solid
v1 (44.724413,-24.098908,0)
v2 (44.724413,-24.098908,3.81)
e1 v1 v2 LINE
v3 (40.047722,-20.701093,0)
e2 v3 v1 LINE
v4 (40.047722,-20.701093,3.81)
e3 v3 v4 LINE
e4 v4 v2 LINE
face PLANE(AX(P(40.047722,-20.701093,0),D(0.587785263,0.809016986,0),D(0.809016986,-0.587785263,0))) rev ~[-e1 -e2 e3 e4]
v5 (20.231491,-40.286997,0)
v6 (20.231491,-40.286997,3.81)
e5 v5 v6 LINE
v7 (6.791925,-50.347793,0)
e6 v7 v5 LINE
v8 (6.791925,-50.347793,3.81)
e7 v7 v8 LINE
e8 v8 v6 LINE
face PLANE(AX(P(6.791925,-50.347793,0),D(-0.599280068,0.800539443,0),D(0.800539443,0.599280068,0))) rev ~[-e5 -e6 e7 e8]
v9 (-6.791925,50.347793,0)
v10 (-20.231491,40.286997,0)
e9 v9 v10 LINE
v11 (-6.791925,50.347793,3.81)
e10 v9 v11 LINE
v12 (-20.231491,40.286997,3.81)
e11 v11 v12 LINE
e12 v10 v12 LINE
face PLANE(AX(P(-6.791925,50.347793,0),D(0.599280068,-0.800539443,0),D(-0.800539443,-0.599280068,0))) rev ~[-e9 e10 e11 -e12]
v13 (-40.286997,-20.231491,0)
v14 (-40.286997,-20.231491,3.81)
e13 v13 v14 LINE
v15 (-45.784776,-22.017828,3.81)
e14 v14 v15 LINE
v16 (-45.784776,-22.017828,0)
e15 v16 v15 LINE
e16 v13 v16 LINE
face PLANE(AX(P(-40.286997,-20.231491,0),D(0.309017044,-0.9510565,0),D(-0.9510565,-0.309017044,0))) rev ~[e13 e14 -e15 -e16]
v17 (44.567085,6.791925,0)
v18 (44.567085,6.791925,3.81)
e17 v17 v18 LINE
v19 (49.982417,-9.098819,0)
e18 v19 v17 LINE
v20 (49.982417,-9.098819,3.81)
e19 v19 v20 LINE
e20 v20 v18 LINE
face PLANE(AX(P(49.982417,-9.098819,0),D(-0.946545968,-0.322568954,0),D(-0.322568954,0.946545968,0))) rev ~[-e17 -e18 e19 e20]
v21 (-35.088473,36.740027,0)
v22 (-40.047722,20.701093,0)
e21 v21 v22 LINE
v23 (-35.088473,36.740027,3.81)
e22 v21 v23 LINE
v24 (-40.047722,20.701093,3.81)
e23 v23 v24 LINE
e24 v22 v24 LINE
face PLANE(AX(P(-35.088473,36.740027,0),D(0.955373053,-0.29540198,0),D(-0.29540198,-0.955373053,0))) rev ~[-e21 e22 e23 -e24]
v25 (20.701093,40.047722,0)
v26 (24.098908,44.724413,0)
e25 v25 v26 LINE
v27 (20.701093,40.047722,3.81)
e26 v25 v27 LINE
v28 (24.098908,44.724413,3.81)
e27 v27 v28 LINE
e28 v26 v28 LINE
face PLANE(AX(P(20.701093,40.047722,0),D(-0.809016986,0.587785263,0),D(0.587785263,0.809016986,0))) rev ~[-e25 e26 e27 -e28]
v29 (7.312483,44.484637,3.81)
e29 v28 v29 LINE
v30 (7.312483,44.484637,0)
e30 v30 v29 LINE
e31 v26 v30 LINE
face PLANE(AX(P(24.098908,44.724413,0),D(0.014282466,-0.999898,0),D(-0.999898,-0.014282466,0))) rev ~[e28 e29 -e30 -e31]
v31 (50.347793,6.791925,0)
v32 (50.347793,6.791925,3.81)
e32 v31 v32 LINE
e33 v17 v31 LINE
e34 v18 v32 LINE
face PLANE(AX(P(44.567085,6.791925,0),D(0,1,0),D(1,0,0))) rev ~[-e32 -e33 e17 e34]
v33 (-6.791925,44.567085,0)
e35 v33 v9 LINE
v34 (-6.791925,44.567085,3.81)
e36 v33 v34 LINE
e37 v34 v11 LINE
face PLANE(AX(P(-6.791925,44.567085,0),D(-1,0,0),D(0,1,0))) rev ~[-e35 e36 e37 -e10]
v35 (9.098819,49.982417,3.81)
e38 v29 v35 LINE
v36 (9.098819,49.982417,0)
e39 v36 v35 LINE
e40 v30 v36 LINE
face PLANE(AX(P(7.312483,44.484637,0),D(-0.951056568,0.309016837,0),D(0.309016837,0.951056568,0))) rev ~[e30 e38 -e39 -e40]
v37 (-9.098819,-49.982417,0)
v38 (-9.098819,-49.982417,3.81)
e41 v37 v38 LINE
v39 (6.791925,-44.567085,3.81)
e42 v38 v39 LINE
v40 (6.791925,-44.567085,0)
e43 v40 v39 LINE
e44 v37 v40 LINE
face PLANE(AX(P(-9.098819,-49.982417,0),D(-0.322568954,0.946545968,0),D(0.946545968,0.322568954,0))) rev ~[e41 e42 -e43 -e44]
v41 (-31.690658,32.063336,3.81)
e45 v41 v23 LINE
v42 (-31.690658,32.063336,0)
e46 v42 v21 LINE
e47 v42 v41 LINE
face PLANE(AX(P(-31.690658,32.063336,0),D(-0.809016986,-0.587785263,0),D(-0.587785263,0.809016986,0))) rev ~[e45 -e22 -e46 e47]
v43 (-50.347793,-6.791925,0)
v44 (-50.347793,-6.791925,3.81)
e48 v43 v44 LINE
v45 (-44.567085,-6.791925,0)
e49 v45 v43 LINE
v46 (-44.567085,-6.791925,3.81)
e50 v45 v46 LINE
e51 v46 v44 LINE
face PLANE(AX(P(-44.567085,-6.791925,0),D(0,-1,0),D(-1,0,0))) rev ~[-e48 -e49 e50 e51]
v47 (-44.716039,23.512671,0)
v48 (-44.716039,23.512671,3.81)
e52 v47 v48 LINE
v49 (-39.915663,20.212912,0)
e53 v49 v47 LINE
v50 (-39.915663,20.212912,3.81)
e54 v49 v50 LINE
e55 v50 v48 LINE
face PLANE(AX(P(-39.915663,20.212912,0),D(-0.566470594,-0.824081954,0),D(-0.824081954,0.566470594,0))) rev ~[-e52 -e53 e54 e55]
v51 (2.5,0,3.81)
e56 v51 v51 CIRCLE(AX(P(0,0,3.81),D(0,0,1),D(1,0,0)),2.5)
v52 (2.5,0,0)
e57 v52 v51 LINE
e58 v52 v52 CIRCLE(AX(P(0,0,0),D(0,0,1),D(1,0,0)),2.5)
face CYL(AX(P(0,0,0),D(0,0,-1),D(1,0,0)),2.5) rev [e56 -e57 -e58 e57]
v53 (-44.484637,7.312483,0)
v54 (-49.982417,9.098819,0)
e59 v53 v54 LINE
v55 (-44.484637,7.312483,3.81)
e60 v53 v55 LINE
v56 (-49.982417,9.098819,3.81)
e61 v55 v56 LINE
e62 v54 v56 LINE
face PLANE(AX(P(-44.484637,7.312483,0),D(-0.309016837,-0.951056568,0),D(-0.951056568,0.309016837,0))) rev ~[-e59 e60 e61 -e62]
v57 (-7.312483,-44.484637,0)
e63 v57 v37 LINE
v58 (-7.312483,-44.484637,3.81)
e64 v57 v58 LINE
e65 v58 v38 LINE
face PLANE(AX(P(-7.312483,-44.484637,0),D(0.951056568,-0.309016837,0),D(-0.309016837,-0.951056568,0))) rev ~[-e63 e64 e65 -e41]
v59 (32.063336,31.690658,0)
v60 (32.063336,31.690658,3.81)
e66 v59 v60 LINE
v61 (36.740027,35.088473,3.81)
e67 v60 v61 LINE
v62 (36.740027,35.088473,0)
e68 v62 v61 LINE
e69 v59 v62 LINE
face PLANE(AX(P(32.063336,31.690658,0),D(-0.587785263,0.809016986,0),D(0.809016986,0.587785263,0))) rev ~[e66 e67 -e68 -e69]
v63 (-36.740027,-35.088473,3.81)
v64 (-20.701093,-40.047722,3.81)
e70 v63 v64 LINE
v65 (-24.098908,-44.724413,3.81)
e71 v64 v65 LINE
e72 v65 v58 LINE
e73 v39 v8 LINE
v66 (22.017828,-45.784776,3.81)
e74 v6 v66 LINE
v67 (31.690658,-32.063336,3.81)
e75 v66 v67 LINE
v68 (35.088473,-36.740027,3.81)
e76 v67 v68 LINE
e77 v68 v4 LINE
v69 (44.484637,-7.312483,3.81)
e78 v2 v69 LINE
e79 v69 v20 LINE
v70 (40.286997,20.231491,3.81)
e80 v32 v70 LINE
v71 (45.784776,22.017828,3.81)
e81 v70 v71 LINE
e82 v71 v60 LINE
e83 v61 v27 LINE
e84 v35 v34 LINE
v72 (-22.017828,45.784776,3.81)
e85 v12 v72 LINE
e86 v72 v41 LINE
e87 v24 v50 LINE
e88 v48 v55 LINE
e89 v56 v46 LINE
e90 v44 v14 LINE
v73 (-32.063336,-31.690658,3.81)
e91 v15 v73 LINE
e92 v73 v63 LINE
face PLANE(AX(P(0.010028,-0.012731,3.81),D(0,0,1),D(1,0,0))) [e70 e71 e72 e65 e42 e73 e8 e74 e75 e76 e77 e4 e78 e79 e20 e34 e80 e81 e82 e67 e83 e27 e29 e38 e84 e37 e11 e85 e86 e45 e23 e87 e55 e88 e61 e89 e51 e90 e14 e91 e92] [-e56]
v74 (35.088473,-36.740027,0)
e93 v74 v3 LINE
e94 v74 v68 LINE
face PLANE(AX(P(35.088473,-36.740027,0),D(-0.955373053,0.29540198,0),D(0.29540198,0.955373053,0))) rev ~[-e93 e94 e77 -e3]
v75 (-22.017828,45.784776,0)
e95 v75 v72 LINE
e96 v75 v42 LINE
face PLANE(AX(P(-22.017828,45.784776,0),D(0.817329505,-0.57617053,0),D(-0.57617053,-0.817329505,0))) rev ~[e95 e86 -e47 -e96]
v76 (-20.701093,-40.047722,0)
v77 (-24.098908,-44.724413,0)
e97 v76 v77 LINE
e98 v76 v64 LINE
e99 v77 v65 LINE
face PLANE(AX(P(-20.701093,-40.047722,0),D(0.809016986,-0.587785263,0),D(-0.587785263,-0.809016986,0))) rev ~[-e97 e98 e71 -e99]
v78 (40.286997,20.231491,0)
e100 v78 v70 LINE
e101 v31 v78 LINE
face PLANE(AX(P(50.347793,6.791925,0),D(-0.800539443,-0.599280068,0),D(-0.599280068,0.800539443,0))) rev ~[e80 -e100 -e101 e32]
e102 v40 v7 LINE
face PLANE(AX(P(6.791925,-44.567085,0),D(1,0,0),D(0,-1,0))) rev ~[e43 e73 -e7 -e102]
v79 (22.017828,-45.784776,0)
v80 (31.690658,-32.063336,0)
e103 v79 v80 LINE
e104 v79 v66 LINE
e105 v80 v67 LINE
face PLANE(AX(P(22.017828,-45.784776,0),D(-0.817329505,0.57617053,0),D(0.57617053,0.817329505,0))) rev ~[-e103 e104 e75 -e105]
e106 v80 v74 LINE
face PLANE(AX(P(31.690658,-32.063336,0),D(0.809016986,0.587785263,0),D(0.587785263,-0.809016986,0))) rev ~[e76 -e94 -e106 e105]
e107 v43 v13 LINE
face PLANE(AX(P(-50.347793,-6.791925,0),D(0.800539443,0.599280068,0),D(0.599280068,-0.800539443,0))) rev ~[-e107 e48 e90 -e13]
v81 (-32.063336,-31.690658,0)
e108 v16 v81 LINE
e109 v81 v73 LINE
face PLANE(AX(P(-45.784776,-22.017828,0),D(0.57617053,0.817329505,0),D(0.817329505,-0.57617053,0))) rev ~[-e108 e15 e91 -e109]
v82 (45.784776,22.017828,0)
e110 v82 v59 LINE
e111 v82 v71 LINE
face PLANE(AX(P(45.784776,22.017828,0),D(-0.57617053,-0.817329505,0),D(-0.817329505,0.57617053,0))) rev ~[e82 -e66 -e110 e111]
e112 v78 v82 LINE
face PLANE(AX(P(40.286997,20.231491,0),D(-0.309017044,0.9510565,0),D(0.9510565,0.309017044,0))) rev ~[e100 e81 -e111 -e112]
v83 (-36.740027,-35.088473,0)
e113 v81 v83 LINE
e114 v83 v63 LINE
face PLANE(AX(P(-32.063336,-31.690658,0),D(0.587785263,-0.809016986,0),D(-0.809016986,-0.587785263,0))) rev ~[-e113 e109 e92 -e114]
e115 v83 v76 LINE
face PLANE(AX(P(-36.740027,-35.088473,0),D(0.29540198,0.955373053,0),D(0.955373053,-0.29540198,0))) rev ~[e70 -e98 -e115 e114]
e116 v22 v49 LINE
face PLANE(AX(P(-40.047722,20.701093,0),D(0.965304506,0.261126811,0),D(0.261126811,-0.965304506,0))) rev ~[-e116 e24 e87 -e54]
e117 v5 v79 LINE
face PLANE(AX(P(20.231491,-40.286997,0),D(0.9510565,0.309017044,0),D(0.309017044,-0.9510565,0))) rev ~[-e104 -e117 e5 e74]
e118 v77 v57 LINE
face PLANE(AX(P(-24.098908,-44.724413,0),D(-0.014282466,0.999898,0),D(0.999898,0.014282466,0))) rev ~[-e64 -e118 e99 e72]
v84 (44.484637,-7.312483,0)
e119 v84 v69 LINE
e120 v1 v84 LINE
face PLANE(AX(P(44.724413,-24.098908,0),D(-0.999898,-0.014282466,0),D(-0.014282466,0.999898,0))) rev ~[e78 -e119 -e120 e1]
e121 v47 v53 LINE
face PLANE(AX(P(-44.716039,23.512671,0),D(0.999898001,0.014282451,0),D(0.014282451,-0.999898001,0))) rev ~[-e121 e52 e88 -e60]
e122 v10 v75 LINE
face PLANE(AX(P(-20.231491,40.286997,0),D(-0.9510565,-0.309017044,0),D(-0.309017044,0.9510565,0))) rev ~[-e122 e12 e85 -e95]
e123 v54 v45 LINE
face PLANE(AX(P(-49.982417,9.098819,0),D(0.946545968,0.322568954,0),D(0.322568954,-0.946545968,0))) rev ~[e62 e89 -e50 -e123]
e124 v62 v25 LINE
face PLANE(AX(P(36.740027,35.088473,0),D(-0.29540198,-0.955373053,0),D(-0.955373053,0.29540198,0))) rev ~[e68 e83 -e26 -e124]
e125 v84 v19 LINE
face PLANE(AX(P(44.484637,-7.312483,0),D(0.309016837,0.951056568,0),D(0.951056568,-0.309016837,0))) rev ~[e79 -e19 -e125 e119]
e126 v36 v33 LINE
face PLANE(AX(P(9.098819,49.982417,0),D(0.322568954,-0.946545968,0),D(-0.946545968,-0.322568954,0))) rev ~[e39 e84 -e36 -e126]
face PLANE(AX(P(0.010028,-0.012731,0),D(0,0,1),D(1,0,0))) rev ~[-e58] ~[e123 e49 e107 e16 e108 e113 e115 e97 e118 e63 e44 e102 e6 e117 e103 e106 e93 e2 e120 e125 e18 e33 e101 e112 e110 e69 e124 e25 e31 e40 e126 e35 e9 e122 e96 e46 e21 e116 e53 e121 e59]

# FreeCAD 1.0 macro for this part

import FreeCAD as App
import Part
import Sketcher
from FreeCAD import Vector
Q = App.Units.Quantity


def add_polygon(sketch, points):
    """Adds a closed chain of lines whose ends are joined by coincident constraints."""
    first, n = sketch.GeometryCount, len(points)
    for a, b in zip(points, points[1:] + points[:1]):
        sketch.addGeometry(Part.LineSegment(App.Vector(*a, 0), App.Vector(*b, 0)), False)
    for i in range(n):
        sketch.addConstraint(Sketcher.Constraint("Coincident", first + i, 2, first + (i + 1) % n, 1))

doc = App.newDocument("Part")
body = doc.addObject("PartDesign::Body", "Body")

# Sketch on XY plane
sketch1 = body.newObject("Sketcher::SketchObject", "Sketch")
sketch1.AttachmentSupport = (doc.getObject("XY_Plane"), [""])
sketch1.MapMode = "FlatFace"
add_polygon(sketch1, [(-32.063336, -31.690658), (-36.740027, -35.088473), (-20.701093, -40.047722), (-24.098908, -44.724413), (-7.312483, -44.484637), (-9.098819, -49.982417), (6.791925, -44.567085), (6.791925, -50.347793), (20.231491, -40.286997), (22.017828, -45.784776), (31.690658, -32.063336), (35.088473, -36.740027), (40.047722, -20.701093), (44.724413, -24.098908), (44.484637, -7.312483), (49.982417, -9.098819), (44.567085, 6.791925), (50.347793, 6.791925), (40.286997, 20.231491), (45.784776, 22.017828), (32.063336, 31.690658), (36.740027, 35.088473), (20.701093, 40.047722), (24.098908, 44.724413), (7.312483, 44.484637), (9.098819, 49.982417), (-6.791925, 44.567085), (-6.791925, 50.347793), (-20.231491, 40.286997), (-22.017828, 45.784776), (-31.690658, 32.063336), (-35.088473, 36.740027), (-40.047722, 20.701093), (-39.915663, 20.212912), (-44.716039, 23.512671), (-44.484637, 7.312483), (-49.982417, 9.098819), (-44.567085, -6.791925), (-50.347793, -6.791925), (-40.286997, -20.231491), (-45.784776, -22.017828)])  # lines 0-40
sketch1.addGeometry(Part.Circle(Vector(0, 0, 0), Vector(0, 0, 1), 2.5), False)  # 41
sketch1.addConstraint([
    Sketcher.Constraint("Vertical", 6),
    Sketcher.Constraint("Horizontal", 16),
    Sketcher.Constraint("Vertical", 26),
    Sketcher.Constraint("Horizontal", 37),
    Sketcher.Constraint("Coincident", 41, 3, -1, 1),
    Sketcher.Constraint("Symmetric", 0, 2, 20, 2, -1, 1),
    Sketcher.Constraint("Symmetric", 1, 2, 21, 2, -1, 1),
    Sketcher.Constraint("Symmetric", 2, 2, 22, 2, -1, 1),
    Sketcher.Constraint("Symmetric", 3, 2, 23, 2, -1, 1),
    Sketcher.Constraint("Symmetric", 4, 2, 24, 2, -1, 1),
    Sketcher.Constraint("Symmetric", 5, 2, 25, 2, -1, 1),
    Sketcher.Constraint("Symmetric", 7, 2, 27, 2, -1, 1),
    Sketcher.Constraint("Symmetric", 8, 2, 28, 2, -1, 1),
    Sketcher.Constraint("Symmetric", 9, 2, 29, 2, -1, 1),
    Sketcher.Constraint("Symmetric", 10, 2, 30, 2, -1, 1),
    Sketcher.Constraint("Symmetric", 11, 2, 31, 2, -1, 1),
    Sketcher.Constraint("Symmetric", 13, 2, 34, 2, -1, 1),
    Sketcher.Constraint("Symmetric", 14, 2, 35, 2, -1, 1),
    Sketcher.Constraint("Symmetric", 15, 2, 36, 2, -1, 1),
    Sketcher.Constraint("Symmetric", 17, 2, 38, 2, -1, 1),
    Sketcher.Constraint("Symmetric", 18, 2, 39, 2, -1, 1),
    Sketcher.Constraint("Symmetric", 19, 2, 40, 2, -1, 1),
    Sketcher.Constraint("Perpendicular", 0, 10),
    Sketcher.Constraint("Perpendicular", 1, 11),
    Sketcher.Constraint("Perpendicular", 2, 12),
    Sketcher.Constraint("Perpendicular", 3, 13),
    Sketcher.Constraint("Perpendicular", 4, 14),
    Sketcher.Constraint("Perpendicular", 5, 15),
    Sketcher.Constraint("Perpendicular", 7, 17),
    Sketcher.Constraint("Perpendicular", 8, 18),
    Sketcher.Constraint("Perpendicular", 9, 19),
    Sketcher.Constraint("Perpendicular", 17, 27),
    Sketcher.Constraint("Perpendicular", 23, 34),
    Sketcher.Constraint("Perpendicular", 27, 38),
    Sketcher.Constraint("Equal", 37, 6),
    Sketcher.Constraint("Equal", 0, 2),
    Sketcher.Constraint("Equal", 1, 3),
    Sketcher.Constraint("Equal", 2, 4),
    Sketcher.Constraint("Equal", 3, 5),
    Sketcher.Constraint("Equal", 5, 7),
    Sketcher.Constraint("Equal", 4, 8),
    Sketcher.Constraint("Equal", 7, 9),
    Sketcher.Constraint("Equal", 8, 10),
    Sketcher.Constraint("Equal", 9, 11),
    Sketcher.Constraint("Equal", 10, 12),
    Sketcher.Constraint("Equal", 11, 13),
    Sketcher.Constraint("Equal", 12, 14),
    Sketcher.Constraint("Equal", 13, 15),
    Sketcher.Constraint("Equal", 15, 17),
    Sketcher.Constraint("Equal", 14, 18),
    Sketcher.Constraint("Equal", 17, 19),
    Sketcher.Constraint("Diameter", 41, Q("5 mm")),
    Sketcher.Constraint("Angle", 0, Q("-143.999999 deg")),
    Sketcher.Constraint("Angle", 2, Q("-126.000001 deg")),
    Sketcher.Constraint("Angle", 4, Q("-107.999991 deg")),
    Sketcher.Constraint("Angle", 8, Q("-71.999997 deg")),
    Sketcher.Constraint("DistanceX", 16, 1, 16, 2, Q("5.780708 mm")),
    Sketcher.Constraint("DistanceY", 3, 2, 9, 2, Q("12.421301 mm")),
    Sketcher.Constraint("Distance", 0, Q("5.780708 mm")),
    Sketcher.Constraint("Distance", 33, Q("5.82512 mm")),
    Sketcher.Constraint("Distance", 34, Q("16.201841 mm")),
    Sketcher.Constraint("DistanceX", 2, 2, -1, 1, Q("24.098908 mm")),
    Sketcher.Constraint("DistanceX", 4, 2, -1, 1, Q("9.098819 mm")),
    Sketcher.Constraint("DistanceX", -1, 1, 7, 2, Q("20.231491 mm")),
    Sketcher.Constraint("DistanceY", -1, 1, 32, 2, Q("20.212912 mm")),
    Sketcher.Constraint("DistanceX", 33, 2, -1, 1, Q("44.716039 mm")),
    Sketcher.Constraint("DistanceY", 1, 2, 0, 2, Q("4.959249 mm")),
])
pad1 = body.newObject("PartDesign::Pad", "Pad")
pad1.Profile = sketch1
pad1.Length = 3.81

doc.recompute()
